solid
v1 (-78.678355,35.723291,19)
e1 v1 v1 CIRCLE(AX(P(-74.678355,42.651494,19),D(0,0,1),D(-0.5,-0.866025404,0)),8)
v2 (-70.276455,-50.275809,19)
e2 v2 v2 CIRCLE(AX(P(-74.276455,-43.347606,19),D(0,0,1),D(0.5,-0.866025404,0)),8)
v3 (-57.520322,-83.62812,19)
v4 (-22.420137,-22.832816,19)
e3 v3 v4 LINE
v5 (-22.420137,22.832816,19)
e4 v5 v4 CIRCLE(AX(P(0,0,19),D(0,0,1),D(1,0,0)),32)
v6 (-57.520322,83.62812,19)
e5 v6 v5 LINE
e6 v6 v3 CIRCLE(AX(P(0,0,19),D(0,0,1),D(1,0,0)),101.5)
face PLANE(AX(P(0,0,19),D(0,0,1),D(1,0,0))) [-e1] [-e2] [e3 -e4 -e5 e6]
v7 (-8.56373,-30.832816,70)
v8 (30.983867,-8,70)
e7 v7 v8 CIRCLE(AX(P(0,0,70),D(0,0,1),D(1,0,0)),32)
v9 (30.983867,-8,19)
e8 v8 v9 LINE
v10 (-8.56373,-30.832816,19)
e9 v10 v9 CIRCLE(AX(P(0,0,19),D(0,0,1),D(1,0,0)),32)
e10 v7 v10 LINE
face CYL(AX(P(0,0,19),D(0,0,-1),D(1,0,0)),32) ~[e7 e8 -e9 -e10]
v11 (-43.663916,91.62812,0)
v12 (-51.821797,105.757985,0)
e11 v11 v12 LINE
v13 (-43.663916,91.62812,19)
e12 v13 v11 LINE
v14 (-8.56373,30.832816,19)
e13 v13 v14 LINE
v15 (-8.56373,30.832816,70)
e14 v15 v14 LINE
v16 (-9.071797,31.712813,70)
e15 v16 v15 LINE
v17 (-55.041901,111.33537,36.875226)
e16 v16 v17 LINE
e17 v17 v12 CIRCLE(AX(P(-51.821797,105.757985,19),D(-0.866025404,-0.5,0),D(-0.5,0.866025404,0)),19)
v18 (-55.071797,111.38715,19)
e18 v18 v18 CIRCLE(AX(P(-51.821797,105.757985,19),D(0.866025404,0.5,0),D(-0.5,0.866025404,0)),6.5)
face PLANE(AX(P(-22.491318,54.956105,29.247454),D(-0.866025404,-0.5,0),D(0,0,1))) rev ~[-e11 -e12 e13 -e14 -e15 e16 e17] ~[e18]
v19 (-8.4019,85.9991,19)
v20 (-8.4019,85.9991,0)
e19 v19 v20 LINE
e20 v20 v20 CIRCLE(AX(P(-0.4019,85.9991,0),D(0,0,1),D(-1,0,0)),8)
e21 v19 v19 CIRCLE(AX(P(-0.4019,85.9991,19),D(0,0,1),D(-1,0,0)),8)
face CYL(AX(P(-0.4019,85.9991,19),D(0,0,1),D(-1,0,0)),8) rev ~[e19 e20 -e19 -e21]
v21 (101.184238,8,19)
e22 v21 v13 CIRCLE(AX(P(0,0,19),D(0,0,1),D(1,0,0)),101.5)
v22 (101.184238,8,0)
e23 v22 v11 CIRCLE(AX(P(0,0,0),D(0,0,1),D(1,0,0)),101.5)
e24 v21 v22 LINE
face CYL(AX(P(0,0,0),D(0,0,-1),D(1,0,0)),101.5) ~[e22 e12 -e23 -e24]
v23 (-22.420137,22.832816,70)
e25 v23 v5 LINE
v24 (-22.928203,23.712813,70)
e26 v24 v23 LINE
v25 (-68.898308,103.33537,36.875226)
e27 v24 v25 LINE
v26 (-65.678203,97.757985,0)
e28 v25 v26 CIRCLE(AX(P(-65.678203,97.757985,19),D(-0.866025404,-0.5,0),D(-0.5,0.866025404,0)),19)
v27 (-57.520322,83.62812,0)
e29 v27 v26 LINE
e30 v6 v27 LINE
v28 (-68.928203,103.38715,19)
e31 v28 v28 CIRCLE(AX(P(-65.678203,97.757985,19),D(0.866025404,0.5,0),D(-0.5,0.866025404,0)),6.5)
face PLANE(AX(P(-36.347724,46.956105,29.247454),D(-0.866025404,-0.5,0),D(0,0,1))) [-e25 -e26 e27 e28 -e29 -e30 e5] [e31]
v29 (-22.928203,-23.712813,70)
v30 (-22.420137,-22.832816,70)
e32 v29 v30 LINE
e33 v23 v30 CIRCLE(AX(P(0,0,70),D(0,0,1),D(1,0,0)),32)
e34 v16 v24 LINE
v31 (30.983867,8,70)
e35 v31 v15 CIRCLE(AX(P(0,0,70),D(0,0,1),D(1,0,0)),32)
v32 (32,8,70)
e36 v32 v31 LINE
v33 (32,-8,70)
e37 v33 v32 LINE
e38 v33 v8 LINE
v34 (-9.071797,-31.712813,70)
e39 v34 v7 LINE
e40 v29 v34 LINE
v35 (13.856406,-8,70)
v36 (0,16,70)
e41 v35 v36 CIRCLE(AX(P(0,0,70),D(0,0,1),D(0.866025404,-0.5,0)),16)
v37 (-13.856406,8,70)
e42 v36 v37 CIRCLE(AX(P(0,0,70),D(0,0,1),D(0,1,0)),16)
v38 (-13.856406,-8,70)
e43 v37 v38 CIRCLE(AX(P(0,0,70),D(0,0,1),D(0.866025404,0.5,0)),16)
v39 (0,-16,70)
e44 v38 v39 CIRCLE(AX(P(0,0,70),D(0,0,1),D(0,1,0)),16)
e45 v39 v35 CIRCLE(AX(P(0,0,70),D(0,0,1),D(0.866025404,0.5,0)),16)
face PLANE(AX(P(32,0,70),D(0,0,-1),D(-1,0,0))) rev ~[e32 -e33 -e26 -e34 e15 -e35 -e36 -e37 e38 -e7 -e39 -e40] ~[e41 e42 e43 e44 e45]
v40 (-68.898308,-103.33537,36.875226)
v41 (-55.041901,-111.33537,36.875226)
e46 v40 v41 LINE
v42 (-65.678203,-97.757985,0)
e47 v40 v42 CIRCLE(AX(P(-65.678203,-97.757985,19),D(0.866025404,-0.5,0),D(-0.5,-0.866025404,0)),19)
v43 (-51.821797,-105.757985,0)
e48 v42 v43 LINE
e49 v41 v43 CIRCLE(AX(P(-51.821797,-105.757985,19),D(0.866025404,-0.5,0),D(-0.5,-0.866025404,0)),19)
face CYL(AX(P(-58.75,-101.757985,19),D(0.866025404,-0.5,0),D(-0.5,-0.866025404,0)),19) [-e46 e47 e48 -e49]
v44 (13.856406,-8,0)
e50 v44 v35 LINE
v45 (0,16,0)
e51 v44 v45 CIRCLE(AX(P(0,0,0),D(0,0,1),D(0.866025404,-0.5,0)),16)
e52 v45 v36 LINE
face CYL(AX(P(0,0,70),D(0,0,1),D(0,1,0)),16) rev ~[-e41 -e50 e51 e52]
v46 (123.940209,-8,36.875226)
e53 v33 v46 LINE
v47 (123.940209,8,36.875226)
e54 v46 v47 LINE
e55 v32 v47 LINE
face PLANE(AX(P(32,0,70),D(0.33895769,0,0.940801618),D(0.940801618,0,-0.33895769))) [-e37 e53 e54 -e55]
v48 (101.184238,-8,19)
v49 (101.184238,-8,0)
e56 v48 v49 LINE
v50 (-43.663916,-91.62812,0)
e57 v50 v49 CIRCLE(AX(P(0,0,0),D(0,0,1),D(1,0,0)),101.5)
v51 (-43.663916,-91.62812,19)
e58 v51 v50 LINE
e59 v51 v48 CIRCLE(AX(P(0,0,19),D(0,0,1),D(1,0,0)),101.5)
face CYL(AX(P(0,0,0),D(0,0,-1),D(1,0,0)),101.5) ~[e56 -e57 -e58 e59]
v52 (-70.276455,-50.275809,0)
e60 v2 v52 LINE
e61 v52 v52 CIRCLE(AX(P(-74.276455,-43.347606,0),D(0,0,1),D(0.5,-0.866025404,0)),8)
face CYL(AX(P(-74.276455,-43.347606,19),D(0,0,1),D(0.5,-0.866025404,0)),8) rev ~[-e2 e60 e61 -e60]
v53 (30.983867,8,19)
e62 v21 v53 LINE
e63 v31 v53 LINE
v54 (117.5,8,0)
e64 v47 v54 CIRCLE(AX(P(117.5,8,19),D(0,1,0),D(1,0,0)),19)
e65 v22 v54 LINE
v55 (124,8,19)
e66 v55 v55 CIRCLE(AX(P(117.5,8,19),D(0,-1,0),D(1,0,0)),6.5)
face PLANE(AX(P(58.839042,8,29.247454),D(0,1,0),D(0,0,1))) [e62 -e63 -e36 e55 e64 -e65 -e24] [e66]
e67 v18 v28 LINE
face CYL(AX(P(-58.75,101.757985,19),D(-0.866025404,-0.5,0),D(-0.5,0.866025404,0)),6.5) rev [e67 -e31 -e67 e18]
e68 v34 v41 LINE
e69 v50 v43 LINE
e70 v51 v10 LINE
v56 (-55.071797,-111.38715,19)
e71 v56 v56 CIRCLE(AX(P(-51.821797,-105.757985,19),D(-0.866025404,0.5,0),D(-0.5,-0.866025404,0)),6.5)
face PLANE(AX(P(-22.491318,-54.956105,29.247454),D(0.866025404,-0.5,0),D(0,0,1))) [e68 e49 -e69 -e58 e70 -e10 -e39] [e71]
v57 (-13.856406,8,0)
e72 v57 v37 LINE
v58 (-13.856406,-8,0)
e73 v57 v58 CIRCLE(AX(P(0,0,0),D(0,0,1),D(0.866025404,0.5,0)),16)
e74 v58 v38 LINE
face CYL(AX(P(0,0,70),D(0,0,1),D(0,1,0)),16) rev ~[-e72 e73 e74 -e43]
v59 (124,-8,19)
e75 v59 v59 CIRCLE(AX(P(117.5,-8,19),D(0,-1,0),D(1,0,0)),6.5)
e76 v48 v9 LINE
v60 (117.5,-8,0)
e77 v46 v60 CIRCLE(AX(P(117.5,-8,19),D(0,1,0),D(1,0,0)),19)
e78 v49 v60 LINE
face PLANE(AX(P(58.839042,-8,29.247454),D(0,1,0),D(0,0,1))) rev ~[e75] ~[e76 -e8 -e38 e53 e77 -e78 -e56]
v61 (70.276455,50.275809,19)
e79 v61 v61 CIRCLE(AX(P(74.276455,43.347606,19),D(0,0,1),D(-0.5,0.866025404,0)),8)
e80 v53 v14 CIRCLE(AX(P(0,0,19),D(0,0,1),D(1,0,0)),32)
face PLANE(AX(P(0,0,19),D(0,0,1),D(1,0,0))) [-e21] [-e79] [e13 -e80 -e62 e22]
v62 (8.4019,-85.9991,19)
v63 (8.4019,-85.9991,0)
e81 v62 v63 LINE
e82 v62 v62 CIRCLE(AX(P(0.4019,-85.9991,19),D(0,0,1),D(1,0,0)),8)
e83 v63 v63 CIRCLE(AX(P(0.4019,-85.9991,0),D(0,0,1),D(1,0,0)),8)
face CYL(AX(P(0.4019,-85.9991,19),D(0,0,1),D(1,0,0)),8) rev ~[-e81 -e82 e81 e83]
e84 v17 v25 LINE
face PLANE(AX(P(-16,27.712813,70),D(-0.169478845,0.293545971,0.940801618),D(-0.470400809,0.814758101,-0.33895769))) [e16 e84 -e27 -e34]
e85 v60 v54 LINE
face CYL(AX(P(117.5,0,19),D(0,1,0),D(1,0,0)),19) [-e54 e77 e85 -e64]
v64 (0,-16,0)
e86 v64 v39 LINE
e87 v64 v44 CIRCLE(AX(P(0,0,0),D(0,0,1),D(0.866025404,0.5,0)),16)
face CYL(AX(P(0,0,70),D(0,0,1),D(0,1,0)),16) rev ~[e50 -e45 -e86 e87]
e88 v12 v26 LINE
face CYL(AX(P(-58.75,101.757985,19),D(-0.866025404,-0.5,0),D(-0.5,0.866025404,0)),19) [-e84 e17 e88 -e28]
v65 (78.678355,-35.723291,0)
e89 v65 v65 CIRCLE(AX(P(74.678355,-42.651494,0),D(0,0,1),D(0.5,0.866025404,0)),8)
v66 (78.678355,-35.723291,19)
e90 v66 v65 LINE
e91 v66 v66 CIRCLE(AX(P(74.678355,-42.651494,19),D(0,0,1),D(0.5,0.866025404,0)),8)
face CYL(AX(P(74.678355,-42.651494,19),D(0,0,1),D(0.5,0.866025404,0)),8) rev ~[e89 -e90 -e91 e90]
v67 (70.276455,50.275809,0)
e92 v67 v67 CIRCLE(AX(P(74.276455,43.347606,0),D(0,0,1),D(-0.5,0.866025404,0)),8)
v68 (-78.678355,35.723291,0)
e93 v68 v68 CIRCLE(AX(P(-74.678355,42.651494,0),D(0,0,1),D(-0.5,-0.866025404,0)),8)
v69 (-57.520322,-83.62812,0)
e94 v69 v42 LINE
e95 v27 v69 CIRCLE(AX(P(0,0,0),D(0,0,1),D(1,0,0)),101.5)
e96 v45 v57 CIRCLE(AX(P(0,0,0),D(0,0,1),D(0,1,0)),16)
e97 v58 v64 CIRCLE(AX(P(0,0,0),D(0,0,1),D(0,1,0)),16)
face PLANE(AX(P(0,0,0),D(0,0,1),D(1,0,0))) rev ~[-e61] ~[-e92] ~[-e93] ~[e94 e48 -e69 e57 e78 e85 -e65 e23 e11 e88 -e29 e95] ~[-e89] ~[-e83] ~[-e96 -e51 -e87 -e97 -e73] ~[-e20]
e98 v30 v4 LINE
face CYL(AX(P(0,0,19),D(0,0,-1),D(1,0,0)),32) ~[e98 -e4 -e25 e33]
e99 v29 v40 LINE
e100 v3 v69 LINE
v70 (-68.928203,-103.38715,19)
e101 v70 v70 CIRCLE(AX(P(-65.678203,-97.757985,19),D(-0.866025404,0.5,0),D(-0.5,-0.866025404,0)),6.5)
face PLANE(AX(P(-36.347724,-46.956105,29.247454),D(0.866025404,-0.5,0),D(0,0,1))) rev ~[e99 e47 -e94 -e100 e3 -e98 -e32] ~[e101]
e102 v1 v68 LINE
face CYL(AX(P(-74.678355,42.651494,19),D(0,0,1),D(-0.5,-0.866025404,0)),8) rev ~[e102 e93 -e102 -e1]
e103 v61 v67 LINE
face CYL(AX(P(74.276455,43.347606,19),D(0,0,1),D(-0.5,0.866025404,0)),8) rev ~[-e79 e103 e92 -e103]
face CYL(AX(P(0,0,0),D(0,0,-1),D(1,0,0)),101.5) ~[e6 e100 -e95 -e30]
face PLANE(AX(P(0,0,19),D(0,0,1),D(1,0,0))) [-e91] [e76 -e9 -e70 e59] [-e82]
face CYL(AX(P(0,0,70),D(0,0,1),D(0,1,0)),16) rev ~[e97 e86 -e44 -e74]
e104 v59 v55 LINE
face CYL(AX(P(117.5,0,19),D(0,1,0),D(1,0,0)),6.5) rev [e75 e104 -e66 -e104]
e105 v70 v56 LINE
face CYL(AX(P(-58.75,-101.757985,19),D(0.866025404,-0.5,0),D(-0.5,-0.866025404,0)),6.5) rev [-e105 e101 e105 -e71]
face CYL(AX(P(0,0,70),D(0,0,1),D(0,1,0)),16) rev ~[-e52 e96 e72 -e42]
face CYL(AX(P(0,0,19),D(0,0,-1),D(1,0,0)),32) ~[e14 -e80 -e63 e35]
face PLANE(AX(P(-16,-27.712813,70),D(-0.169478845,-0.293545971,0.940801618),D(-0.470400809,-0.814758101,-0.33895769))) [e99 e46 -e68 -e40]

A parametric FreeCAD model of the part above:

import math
import FreeCAD as App
import Part
import Sketcher
from FreeCAD import Vector
Q = App.Units.Quantity

doc = App.newDocument("Part")
body = doc.addObject("PartDesign::Body", "Body")

sketch1 = doc.addObject("Sketcher::SketchObject", "Sketch")
body.addObject(sketch1)
sketch1.AttachmentSupport = (doc.XY_Plane, [""])
sketch1.MapMode = "FlatFace"
sketch1.addGeometry(Part.Circle(Vector(0, 0, 0), Vector(0, 0, 1), 102), False)
sketch1.addConstraint([
    Sketcher.Constraint("Coincident", 0, 3, -1, 1),
    Sketcher.Constraint("Diameter", 0, Q("203 mm")),
])
pad1 = doc.addObject("PartDesign::Pad", "Pad")
body.addObject(pad1)
pad1.Profile = sketch1
pad1.Length = 19

sketch2 = doc.addObject("Sketcher::SketchObject", "Sketch001")
body.addObject(sketch2)
sketch2.AttachmentSupport = (doc.XY_Plane, [""])
sketch2.MapMode = "FlatFace"
sketch2.AttachmentOffset = App.Placement(Vector(0, 0, 19), App.Rotation())
sketch2.addGeometry(Part.Circle(Vector(0, -86, 0), Vector(0, 0, 1), 8), False)
sketch2.addConstraint([
    Sketcher.Constraint("Diameter", 0, Q("16 mm")),
    Sketcher.Constraint("DistanceX", -1, 1, 0, 3, Q("0.402 mm")),
    Sketcher.Constraint("DistanceY", 0, 3, -1, 1, Q("85.999 mm")),
])
pocket1 = doc.addObject("PartDesign::Pocket", "Pocket")
body.addObject(pocket1)
pocket1.Profile = sketch2
pocket1.Length = 72.3819
pocket1.Midplane = True
doc.recompute()

polarpattern = doc.addObject("PartDesign::PolarPattern", "PolarPattern")
body.addObject(polarpattern)
polarpattern.Originals = [pocket1]
polarpattern.Axis = (doc.Z_Axis, [""])
polarpattern.Angle = 360
polarpattern.Occurrences = 6
body.Tip = polarpattern

sketch3 = doc.addObject("Sketcher::SketchObject", "Sketch002")
body.addObject(sketch3)
sketch3.AttachmentSupport = (doc.XY_Plane, [""])
sketch3.MapMode = "FlatFace"
sketch3.AttachmentOffset = App.Placement(Vector(0, 0, 19), App.Rotation())
sketch3.addGeometry(Part.Circle(Vector(0, 0, 0), Vector(0, 0, 1), 32), False)
sketch3.addConstraint([
    Sketcher.Constraint("Coincident", 0, 3, -1, 1),
    Sketcher.Constraint("Diameter", 0, Q("64 mm")),
])
pad2 = doc.addObject("PartDesign::Pad", "Pad001")
body.addObject(pad2)
pad2.Profile = sketch3
pad2.Length = 51

sketch4 = doc.addObject("Sketcher::SketchObject", "Sketch003")
body.addObject(sketch4)
sketch4.AttachmentSupport = (doc.XY_Plane, [""])
sketch4.MapMode = "FlatFace"
sketch4.AttachmentOffset = App.Placement(Vector(0, 0, 70), App.Rotation())
sketch4.addGeometry(Part.Circle(Vector(0, 0, 0), Vector(0, 0, 1), 16), False)
sketch4.addConstraint([
    Sketcher.Constraint("Coincident", 0, 3, -1, 1),
    Sketcher.Constraint("Diameter", 0, Q("32 mm")),
])
pocket2 = doc.addObject("PartDesign::Pocket", "Pocket001")
body.addObject(pocket2)
pocket2.Profile = sketch4
pocket2.Length = 382.6362
pocket2.Midplane = True

sketch5 = doc.addObject("Sketcher::SketchObject", "Sketch004")
body.addObject(sketch5)
sketch5.AttachmentSupport = (doc.XZ_Plane, [""])
sketch5.MapMode = "FlatFace"
sketch5.addGeometry([
    Part.LineSegment(Vector(124, 37, 0), Vector(32, 70, 0)),
    Part.LineSegment(Vector(32, 70, 0), Vector(0, 70, 0)),
    Part.LineSegment(Vector(0, 70, 0), Vector(0, 0, 0)),
    Part.LineSegment(Vector(0, 0, 0), Vector(118, 0, 0)),
    Part.ArcOfCircle(Part.Circle(Vector(118, 19, 0), Vector(0, 0, 1), 19), math.radians(-90), math.radians(70)),
    Part.Circle(Vector(118, 19, 0), Vector(0, 0, 1), 6),
], False)
sketch5.addConstraint([
    Sketcher.Constraint("Coincident", 0, 2, 1, 1),
    Sketcher.Constraint("Coincident", 1, 2, 2, 1),
    Sketcher.Constraint("Coincident", 2, 2, 3, 1),
    Sketcher.Constraint("Tangent", 3, 2, 4, 1),
    Sketcher.Constraint("Tangent", 4, 2, 0, 1),
    Sketcher.Constraint("Horizontal", 1),
    Sketcher.Constraint("Vertical", 2),
    Sketcher.Constraint("Horizontal", 3),
    Sketcher.Constraint("Coincident", 2, 2, -1, 1),
    Sketcher.Constraint("Coincident", 5, 3, 4, 3),
    Sketcher.Constraint("Diameter", 5, Q("13 mm")),
    Sketcher.Constraint("Radius", 4, Q("19 mm")),
    Sketcher.Constraint("DistanceX", 1, 2, 1, 1, Q("32 mm")),
    Sketcher.Constraint("DistanceY", 2, 2, 2, 1, Q("70 mm")),
    Sketcher.Constraint("DistanceX", 3, 1, 3, 2, Q("117.5 mm")),
])
pad3 = doc.addObject("PartDesign::Pad", "Pad002")
body.addObject(pad3)
pad3.Profile = sketch5
pad3.Length = 16
pad3.Midplane = True
doc.recompute()

polarpattern2 = doc.addObject("PartDesign::PolarPattern", "PolarPattern001")
body.addObject(polarpattern2)
polarpattern2.Originals = [pad3]
polarpattern2.Axis = (doc.Z_Axis, [""])
polarpattern2.Angle = 360
polarpattern2.Occurrences = 3
body.Tip = polarpattern2

sketch6 = doc.addObject("Sketcher::SketchObject", "Sketch005")
body.addObject(sketch6)
sketch6.AttachmentSupport = (doc.XY_Plane, [""])
sketch6.MapMode = "FlatFace"
sketch6.AttachmentOffset = App.Placement(Vector(0, 0, 70), App.Rotation())
sketch6.addGeometry(Part.Circle(Vector(0, 0, 0), Vector(0, 0, 1), 16), False)
sketch6.addConstraint([
    Sketcher.Constraint("Coincident", 0, 3, -1, 1),
    Sketcher.Constraint("Diameter", 0, Q("32 mm")),
])
pocket3 = doc.addObject("PartDesign::Pocket", "Pocket002")
body.addObject(pocket3)
pocket3.Profile = sketch6
pocket3.Length = 1270.4141
pocket3.Midplane = True

doc.recompute()
